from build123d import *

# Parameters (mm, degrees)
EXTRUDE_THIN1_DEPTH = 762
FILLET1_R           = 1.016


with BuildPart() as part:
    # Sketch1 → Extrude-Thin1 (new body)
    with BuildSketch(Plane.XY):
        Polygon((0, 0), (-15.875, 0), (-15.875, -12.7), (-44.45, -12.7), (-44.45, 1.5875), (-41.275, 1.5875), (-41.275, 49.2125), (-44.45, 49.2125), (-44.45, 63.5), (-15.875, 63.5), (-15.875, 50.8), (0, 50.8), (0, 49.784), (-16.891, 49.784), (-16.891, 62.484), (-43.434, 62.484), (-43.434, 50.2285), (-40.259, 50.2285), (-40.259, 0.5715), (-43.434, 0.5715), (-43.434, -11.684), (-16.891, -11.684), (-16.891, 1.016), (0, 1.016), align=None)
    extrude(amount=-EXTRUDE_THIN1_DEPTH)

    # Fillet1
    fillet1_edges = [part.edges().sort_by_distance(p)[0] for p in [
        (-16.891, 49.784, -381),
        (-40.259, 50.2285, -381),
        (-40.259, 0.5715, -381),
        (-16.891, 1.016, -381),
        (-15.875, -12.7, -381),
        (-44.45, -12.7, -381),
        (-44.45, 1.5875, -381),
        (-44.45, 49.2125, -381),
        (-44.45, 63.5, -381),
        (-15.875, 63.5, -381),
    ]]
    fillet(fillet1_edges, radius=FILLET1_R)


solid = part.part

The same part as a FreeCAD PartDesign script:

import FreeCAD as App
import Part
import Sketcher
Q = App.Units.Quantity


def edges_at(feature, points):
    """Names of the edges that pass closest to the given points."""
    edges = feature.Shape.Edges
    near = lambda p: min(range(len(edges)), key=lambda i: edges[i].distToShape(Part.Vertex(*p))[0])
    return sorted({f"Edge{near(p) + 1}" for p in points})

doc = App.newDocument("Part")
params = doc.addObject("Spreadsheet::Sheet", "Params")
for row, (alias, value) in enumerate([
    ("sketch1_height", "0.5 in"),
    ("sketch1_height2", "0.04 in"),
    ("sketch1_width", "0.625 in"),
    ("sketch1_width2", "0.665 in"),
    ("sketch1_width3", "1.045 in"),
    ("pad1_length", "30 in"),
    ("fillet_radius", "0.04 in"),
], start=1):
    params.set(f"A{row}", alias)
    params.set(f"B{row}", "=" + value)
    params.setAlias(f"B{row}", alias)

body = doc.addObject("PartDesign::Body", "Body")

# Sketch on XY plane
sketch1 = doc.addObject("Sketcher::SketchObject", "Sketch")
body.addObject(sketch1)
sketch1.AttachmentSupport = (doc.XY_Plane, [""])
sketch1.MapMode = "FlatFace"
sketch1.addGeometry([
    Part.LineSegment(App.Vector(-15.9, 0, 0), App.Vector(0, 0, 0)),  # 0
    Part.LineSegment(App.Vector(0, 0, 0), App.Vector(0, 1, 0)),  # 1
    Part.LineSegment(App.Vector(0, 1, 0), App.Vector(-16.9, 1, 0)),  # 2
    Part.LineSegment(App.Vector(-16.9, 1, 0), App.Vector(-16.9, -11.7, 0)),  # 3
    Part.LineSegment(App.Vector(-16.9, -11.7, 0), App.Vector(-43.4, -11.7, 0)),  # 4
    Part.LineSegment(App.Vector(-43.4, -11.7, 0), App.Vector(-43.4, 0.6, 0)),  # 5
    Part.LineSegment(App.Vector(-43.4, 0.6, 0), App.Vector(-40.3, 0.6, 0)),  # 6
    Part.LineSegment(App.Vector(-40.3, 0.6, 0), App.Vector(-40.3, 50.2, 0)),  # 7
    Part.LineSegment(App.Vector(-40.3, 50.2, 0), App.Vector(-43.4, 50.2, 0)),  # 8
    Part.LineSegment(App.Vector(-43.4, 50.2, 0), App.Vector(-43.4, 62.5, 0)),  # 9
    Part.LineSegment(App.Vector(-43.4, 62.5, 0), App.Vector(-16.9, 62.5, 0)),  # 10
    Part.LineSegment(App.Vector(-16.9, 62.5, 0), App.Vector(-16.9, 49.8, 0)),  # 11
    Part.LineSegment(App.Vector(-16.9, 49.8, 0), App.Vector(0, 49.8, 0)),  # 12
    Part.LineSegment(App.Vector(0, 49.8, 0), App.Vector(0, 50.8, 0)),  # 13
    Part.LineSegment(App.Vector(0, 50.8, 0), App.Vector(-15.9, 50.8, 0)),  # 14
    Part.LineSegment(App.Vector(-15.9, 50.8, 0), App.Vector(-15.9, 63.5, 0)),  # 15
    Part.LineSegment(App.Vector(-15.9, 63.5, 0), App.Vector(-44.5, 63.5, 0)),  # 16
    Part.LineSegment(App.Vector(-44.5, 63.5, 0), App.Vector(-44.5, 49.2, 0)),  # 17
    Part.LineSegment(App.Vector(-44.5, 49.2, 0), App.Vector(-41.3, 49.2, 0)),  # 18
    Part.LineSegment(App.Vector(-41.3, 49.2, 0), App.Vector(-41.3, 1.6, 0)),  # 19
    Part.LineSegment(App.Vector(-41.3, 1.6, 0), App.Vector(-44.5, 1.6, 0)),  # 20
    Part.LineSegment(App.Vector(-44.5, 1.6, 0), App.Vector(-44.5, -12.7, 0)),  # 21
    Part.LineSegment(App.Vector(-44.5, -12.7, 0), App.Vector(-15.9, -12.7, 0)),  # 22
    Part.LineSegment(App.Vector(-15.9, -12.7, 0), App.Vector(-15.9, 0, 0)),  # 23
], False)
sketch1.addConstraint([
    Sketcher.Constraint("Coincident", 0, 2, 1, 1),
    Sketcher.Constraint("Coincident", 1, 2, 2, 1),
    Sketcher.Constraint("Coincident", 2, 2, 3, 1),
    Sketcher.Constraint("Coincident", 3, 2, 4, 1),
    Sketcher.Constraint("Coincident", 4, 2, 5, 1),
    Sketcher.Constraint("Coincident", 5, 2, 6, 1),
    Sketcher.Constraint("Coincident", 6, 2, 7, 1),
    Sketcher.Constraint("Coincident", 7, 2, 8, 1),
    Sketcher.Constraint("Coincident", 8, 2, 9, 1),
    Sketcher.Constraint("Coincident", 9, 2, 10, 1),
    Sketcher.Constraint("Coincident", 10, 2, 11, 1),
    Sketcher.Constraint("Coincident", 11, 2, 12, 1),
    Sketcher.Constraint("Coincident", 12, 2, 13, 1),
    Sketcher.Constraint("Coincident", 13, 2, 14, 1),
    Sketcher.Constraint("Coincident", 14, 2, 15, 1),
    Sketcher.Constraint("Coincident", 15, 2, 16, 1),
    Sketcher.Constraint("Coincident", 16, 2, 17, 1),
    Sketcher.Constraint("Coincident", 17, 2, 18, 1),
    Sketcher.Constraint("Coincident", 18, 2, 19, 1),
    Sketcher.Constraint("Coincident", 19, 2, 20, 1),
    Sketcher.Constraint("Coincident", 20, 2, 21, 1),
    Sketcher.Constraint("Coincident", 21, 2, 22, 1),
    Sketcher.Constraint("Coincident", 22, 2, 23, 1),
    Sketcher.Constraint("Coincident", 23, 2, 0, 1),
    Sketcher.Constraint("Horizontal", 0),
    Sketcher.Constraint("Vertical", 1),
    Sketcher.Constraint("Horizontal", 2),
    Sketcher.Constraint("Vertical", 3),
    Sketcher.Constraint("Horizontal", 4),
    Sketcher.Constraint("Vertical", 5),
    Sketcher.Constraint("Horizontal", 6),
    Sketcher.Constraint("Vertical", 7),
    Sketcher.Constraint("Horizontal", 8),
    Sketcher.Constraint("Vertical", 9),
    Sketcher.Constraint("Horizontal", 10),
    Sketcher.Constraint("Vertical", 11),
    Sketcher.Constraint("Horizontal", 12),
    Sketcher.Constraint("Vertical", 13),
    Sketcher.Constraint("Horizontal", 14),
    Sketcher.Constraint("Vertical", 15),
    Sketcher.Constraint("Horizontal", 16),
    Sketcher.Constraint("Vertical", 17),
    Sketcher.Constraint("Horizontal", 18),
    Sketcher.Constraint("Vertical", 19),
    Sketcher.Constraint("Horizontal", 20),
    Sketcher.Constraint("Vertical", 21),
    Sketcher.Constraint("Horizontal", 22),
    Sketcher.Constraint("Vertical", 23),
    Sketcher.Constraint("Coincident", 0, 2, -1, 1),
    Sketcher.Constraint("PointOnObject", 12, 2, -2),
    Sketcher.Constraint("Vertical", 5, 2, 8, 2),
    Sketcher.Constraint("Vertical", 3, 2, 10, 2),
    Sketcher.Constraint("Vertical", 17, 2, 20, 2),
    Sketcher.Constraint("Vertical", 15, 2, 22, 2),
    Sketcher.Constraint("Equal", 8, 18),
    Sketcher.Constraint("Equal", 5, 9),
    Sketcher.Constraint("Equal", 3, 11),
    Sketcher.Constraint("Equal", 1, 13),
    Sketcher.Constraint("Equal", 11, 15),
    Sketcher.Constraint("Equal", 17, 21),
    Sketcher.Constraint("Equal", 15, 23),
    Sketcher.Constraint("DistanceY", 3, 2, 3, 1, Q("0.5 in")),
    Sketcher.Constraint("DistanceY", -1, 1, 13, 2, Q("2 in")),
    Sketcher.Constraint("DistanceY", 1, 1, 1, 2, Q("0.04 in")),
    Sketcher.Constraint("DistanceX", 0, 1, 0, 2, Q("0.625 in")),
    Sketcher.Constraint("DistanceX", 2, 2, 2, 1, Q("0.665 in")),
    Sketcher.Constraint("DistanceX", 4, 2, 4, 1, Q("1.045 in")),
    Sketcher.Constraint("DistanceX", 6, 1, 6, 2, Q("0.125 in")),
    Sketcher.Constraint("DistanceX", 16, 2, 16, 1, Q("1.125 in")),
    Sketcher.Constraint("DistanceY", 7, 1, 7, 2, Q("1.955 in")),
    Sketcher.Constraint("DistanceY", 17, 2, 17, 1, Q("0.5625 in")),
])
sketch1.setExpression("Constraints[61]", "Params.sketch1_height")
sketch1.setExpression("Constraints[63]", "Params.sketch1_height2")
sketch1.setExpression("Constraints[64]", "Params.sketch1_width")
sketch1.setExpression("Constraints[65]", "Params.sketch1_width2")
sketch1.setExpression("Constraints[66]", "Params.sketch1_width3")
pad1 = doc.addObject("PartDesign::Pad", "Pad")
body.addObject(pad1)
pad1.Profile = sketch1
pad1.setExpression("Length", "Params.pad1_length")
pad1.Reversed = True
doc.recompute()

fillet = doc.addObject("PartDesign::Fillet", "Fillet")
body.addObject(fillet)
fillet.Base = (pad1, edges_at(pad1, [
    (-16.891, 49.784, -381),
    (-40.259, 50.228, -381),
    (-40.259, 0.572, -381),
    (-16.891, 1.016, -381),
    (-15.875, -12.7, -381),
    (-44.45, -12.7, -381),
    (-44.45, 1.587, -381),
    (-44.45, 49.212, -381),
    (-44.45, 63.5, -381),
    (-15.875, 63.5, -381),
]))
fillet.setExpression("Radius", "Params.fillet_radius")

doc.recompute()
